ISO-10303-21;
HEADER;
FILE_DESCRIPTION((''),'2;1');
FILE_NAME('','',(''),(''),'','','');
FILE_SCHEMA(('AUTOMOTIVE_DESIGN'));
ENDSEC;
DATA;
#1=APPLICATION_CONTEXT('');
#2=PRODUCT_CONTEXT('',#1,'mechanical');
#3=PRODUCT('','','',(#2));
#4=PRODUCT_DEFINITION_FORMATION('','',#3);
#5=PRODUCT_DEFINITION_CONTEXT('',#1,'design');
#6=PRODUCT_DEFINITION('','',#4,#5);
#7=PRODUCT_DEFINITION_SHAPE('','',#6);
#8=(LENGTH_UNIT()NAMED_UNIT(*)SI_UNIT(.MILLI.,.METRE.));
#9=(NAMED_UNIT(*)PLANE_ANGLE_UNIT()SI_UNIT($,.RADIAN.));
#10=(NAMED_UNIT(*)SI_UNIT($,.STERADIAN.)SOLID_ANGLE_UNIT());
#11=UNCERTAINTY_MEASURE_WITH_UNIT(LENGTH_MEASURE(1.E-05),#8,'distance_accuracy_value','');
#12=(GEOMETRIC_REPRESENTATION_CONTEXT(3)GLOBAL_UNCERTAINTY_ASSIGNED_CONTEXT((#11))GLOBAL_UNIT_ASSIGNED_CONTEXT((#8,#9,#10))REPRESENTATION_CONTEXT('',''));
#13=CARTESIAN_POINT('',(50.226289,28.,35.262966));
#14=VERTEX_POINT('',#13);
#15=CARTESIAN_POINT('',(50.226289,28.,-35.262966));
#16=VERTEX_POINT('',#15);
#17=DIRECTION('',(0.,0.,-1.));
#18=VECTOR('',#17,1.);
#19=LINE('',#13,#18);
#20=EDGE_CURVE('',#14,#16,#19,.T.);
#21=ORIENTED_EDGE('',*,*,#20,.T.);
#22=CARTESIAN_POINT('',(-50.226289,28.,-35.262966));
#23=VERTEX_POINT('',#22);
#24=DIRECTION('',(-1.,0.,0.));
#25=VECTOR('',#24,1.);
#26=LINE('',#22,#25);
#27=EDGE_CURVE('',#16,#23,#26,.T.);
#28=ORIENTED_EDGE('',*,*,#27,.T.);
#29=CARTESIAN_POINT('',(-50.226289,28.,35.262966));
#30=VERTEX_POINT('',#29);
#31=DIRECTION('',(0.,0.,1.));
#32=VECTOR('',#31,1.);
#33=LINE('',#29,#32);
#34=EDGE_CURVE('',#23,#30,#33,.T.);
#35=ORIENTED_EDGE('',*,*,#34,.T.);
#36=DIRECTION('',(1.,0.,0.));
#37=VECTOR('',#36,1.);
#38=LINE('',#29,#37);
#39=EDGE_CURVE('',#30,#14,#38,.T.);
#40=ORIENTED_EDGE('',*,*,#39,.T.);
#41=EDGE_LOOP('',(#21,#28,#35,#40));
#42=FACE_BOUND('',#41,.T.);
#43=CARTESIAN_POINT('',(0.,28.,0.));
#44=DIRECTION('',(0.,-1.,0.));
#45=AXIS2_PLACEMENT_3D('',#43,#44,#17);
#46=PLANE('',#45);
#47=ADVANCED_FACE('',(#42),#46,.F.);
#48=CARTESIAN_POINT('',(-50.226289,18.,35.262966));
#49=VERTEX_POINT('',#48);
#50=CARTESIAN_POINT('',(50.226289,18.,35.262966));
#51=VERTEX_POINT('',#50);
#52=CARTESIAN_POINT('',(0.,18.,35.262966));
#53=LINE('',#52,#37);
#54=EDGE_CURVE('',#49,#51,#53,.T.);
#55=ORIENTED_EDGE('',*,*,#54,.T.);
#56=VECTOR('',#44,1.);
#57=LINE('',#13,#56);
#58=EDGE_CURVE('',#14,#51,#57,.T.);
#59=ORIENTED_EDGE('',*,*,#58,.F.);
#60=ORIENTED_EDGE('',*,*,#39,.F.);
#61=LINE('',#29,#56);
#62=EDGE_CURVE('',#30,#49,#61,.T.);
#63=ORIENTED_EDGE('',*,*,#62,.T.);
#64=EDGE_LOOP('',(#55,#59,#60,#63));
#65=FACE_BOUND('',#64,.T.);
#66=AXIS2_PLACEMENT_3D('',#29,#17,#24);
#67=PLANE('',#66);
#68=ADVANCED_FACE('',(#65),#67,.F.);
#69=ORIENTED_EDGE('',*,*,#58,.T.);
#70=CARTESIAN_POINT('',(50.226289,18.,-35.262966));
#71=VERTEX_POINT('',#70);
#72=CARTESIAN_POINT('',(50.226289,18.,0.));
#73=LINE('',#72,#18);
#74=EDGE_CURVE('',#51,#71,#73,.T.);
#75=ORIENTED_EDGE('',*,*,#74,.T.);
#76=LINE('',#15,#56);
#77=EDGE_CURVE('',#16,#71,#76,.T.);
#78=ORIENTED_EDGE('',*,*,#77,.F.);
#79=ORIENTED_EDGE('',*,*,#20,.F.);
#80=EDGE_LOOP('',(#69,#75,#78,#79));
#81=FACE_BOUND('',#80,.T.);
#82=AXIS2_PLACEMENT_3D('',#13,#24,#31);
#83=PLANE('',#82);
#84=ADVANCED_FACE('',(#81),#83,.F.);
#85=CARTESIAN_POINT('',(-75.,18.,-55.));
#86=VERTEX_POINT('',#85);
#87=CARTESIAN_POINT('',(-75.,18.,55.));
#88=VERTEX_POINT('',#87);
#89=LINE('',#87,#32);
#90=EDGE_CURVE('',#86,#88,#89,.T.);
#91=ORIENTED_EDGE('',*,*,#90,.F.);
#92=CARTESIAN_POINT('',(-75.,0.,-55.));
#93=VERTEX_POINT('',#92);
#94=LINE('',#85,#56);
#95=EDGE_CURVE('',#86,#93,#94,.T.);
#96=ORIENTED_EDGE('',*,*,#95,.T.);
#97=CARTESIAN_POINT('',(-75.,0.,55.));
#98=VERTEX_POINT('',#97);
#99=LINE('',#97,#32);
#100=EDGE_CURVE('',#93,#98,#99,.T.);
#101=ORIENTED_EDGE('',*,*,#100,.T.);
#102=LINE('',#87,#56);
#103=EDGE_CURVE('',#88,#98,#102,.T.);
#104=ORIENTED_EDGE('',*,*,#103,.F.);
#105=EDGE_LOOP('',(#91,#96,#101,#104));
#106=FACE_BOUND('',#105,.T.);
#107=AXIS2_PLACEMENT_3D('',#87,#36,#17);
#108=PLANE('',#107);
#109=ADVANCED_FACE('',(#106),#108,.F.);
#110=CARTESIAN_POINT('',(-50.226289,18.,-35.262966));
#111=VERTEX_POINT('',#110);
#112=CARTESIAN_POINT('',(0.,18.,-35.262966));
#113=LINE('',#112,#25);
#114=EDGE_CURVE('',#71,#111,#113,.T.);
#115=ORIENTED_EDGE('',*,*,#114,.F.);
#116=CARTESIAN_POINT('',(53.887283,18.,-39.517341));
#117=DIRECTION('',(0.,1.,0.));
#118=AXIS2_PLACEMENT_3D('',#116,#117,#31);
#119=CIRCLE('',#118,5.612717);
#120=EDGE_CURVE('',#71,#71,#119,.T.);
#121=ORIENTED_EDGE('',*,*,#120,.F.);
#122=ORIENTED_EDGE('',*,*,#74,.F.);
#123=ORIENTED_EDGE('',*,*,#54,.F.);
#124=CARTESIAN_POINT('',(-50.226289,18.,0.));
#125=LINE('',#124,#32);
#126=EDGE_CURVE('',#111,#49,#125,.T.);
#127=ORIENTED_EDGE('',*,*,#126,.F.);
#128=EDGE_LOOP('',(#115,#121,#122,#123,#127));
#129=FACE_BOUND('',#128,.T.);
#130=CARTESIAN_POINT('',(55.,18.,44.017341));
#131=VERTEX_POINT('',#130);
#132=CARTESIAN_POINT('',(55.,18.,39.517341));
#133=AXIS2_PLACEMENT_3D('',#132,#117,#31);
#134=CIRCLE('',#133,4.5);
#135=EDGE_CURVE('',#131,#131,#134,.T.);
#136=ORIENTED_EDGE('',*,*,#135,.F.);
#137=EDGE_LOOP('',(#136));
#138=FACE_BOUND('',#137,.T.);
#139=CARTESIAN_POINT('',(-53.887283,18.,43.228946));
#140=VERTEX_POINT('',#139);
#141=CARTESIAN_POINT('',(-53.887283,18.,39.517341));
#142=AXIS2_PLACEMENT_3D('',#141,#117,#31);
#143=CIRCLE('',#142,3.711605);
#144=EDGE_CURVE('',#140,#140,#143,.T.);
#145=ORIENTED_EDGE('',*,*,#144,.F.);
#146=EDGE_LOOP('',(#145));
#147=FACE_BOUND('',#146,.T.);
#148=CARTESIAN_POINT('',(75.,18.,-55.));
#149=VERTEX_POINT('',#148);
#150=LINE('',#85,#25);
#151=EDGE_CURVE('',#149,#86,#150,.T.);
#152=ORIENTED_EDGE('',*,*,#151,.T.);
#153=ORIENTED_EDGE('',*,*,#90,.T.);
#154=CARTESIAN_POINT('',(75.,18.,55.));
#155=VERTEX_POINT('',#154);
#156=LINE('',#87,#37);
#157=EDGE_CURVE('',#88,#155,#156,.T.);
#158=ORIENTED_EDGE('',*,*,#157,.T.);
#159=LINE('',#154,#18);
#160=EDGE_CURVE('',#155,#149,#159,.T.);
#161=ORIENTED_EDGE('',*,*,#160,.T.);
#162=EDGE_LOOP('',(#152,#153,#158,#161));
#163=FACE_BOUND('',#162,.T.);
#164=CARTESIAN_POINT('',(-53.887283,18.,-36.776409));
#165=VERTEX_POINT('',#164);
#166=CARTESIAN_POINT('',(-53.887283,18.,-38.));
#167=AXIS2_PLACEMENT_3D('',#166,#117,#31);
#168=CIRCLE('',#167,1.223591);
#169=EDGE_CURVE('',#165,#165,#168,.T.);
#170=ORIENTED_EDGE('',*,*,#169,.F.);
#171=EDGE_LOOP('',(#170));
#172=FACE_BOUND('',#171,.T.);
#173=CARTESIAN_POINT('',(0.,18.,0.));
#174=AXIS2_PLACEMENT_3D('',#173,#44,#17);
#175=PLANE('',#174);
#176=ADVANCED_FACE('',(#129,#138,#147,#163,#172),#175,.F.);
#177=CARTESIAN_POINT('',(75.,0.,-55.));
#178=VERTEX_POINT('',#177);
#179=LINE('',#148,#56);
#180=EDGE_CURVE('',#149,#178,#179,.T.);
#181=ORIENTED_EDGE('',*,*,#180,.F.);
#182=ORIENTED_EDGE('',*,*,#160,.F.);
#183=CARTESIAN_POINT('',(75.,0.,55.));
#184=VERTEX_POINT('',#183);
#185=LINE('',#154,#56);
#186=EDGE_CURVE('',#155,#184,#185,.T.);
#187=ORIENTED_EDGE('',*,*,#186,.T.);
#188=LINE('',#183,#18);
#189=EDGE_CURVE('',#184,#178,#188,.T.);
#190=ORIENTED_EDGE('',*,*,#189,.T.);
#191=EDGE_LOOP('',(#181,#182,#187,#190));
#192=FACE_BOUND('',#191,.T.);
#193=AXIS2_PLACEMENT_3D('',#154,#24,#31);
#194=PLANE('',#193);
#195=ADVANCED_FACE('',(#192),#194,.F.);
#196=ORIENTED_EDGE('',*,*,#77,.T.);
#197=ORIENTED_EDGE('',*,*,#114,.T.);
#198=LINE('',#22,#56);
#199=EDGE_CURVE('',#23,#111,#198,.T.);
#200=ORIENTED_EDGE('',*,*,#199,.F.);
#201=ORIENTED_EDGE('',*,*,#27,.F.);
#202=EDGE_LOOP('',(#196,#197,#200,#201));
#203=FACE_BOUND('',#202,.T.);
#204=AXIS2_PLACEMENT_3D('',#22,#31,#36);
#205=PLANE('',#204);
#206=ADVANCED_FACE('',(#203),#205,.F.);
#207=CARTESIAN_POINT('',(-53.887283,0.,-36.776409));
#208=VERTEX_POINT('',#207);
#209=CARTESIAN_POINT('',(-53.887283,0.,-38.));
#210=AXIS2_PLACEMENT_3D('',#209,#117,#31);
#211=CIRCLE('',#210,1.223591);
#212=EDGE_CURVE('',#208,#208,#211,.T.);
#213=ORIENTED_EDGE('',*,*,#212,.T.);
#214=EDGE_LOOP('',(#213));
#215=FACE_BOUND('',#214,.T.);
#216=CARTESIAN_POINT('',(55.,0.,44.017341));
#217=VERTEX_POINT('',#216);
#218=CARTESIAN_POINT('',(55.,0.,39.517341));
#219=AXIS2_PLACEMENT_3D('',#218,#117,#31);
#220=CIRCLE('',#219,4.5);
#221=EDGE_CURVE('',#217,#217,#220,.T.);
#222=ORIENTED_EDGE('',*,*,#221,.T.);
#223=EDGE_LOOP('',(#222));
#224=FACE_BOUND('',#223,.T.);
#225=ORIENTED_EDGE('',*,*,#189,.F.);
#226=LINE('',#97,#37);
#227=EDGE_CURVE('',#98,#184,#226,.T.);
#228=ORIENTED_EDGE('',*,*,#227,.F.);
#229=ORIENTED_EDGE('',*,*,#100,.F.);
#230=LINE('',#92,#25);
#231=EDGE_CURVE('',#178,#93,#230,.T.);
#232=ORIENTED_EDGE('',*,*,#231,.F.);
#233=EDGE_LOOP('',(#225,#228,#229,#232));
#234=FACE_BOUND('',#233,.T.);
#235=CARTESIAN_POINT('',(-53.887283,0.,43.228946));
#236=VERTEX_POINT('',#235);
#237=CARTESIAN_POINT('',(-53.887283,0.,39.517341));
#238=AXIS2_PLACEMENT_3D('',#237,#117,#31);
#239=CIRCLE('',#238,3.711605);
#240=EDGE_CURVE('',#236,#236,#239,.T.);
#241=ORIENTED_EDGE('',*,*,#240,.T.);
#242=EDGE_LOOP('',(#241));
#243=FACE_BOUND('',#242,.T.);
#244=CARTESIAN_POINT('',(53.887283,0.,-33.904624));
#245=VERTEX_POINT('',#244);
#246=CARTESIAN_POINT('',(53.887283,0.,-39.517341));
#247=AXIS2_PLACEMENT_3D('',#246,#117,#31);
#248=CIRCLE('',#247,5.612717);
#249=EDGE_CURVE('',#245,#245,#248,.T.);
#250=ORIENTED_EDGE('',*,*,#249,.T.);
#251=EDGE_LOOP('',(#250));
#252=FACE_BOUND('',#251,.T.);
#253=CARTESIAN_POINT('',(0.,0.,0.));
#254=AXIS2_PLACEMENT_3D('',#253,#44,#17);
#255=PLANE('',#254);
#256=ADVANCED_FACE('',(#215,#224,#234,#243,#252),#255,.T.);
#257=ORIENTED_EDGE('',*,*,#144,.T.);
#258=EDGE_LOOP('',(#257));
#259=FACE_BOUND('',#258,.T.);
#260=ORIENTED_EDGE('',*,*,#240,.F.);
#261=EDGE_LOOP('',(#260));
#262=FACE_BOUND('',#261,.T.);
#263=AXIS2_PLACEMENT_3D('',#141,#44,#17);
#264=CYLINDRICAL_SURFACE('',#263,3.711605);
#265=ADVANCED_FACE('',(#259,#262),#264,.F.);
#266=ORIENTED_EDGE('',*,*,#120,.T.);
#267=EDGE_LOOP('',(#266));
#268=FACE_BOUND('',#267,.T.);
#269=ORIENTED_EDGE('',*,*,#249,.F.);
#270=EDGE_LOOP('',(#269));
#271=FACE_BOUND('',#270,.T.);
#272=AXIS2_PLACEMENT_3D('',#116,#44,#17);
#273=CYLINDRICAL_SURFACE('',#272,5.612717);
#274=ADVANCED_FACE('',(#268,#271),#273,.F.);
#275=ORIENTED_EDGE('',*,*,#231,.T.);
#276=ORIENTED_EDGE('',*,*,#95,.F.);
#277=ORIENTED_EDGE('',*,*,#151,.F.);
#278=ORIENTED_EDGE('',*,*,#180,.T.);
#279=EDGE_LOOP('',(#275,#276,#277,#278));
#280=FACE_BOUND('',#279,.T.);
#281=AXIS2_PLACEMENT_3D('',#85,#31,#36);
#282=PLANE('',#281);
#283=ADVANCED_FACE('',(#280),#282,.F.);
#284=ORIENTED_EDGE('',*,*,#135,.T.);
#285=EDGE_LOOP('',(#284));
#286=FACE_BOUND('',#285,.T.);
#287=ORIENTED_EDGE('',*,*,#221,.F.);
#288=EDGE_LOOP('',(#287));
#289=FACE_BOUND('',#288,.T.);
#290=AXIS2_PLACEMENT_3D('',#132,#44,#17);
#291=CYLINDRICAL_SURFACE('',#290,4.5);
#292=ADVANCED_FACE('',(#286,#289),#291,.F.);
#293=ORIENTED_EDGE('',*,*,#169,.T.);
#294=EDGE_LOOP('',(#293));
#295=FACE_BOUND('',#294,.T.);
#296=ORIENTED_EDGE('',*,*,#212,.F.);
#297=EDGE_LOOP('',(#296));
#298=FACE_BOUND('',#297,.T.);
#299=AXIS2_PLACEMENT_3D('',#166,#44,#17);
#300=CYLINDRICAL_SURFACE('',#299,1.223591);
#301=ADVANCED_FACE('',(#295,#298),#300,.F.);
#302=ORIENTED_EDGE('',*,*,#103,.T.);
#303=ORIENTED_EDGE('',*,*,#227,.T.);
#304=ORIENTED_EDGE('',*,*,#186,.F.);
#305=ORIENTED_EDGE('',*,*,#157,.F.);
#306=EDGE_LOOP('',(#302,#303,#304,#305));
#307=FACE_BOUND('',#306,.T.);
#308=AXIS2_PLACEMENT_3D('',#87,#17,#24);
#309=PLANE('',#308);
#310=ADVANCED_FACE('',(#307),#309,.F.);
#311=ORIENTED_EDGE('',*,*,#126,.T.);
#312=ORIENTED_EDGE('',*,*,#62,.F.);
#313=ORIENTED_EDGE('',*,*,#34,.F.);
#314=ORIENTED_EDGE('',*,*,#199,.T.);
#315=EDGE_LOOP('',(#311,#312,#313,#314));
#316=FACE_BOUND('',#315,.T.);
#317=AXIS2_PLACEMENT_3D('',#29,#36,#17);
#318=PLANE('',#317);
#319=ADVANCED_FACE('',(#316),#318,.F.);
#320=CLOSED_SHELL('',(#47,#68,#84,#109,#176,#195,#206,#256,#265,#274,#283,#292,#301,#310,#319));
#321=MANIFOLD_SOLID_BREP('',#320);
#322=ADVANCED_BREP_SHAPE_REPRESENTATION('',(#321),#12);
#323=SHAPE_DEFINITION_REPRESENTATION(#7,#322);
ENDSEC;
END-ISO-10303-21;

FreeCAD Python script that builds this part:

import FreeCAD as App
import Part
import Sketcher
from FreeCAD import Vector


def add_polygon(sketch, points):
    """Adds a closed chain of lines whose ends are joined by coincident constraints."""
    first, n = sketch.GeometryCount, len(points)
    for a, b in zip(points, points[1:] + points[:1]):
        sketch.addGeometry(Part.LineSegment(App.Vector(*a, 0), App.Vector(*b, 0)), False)
    for i in range(n):
        sketch.addConstraint(Sketcher.Constraint("Coincident", first + i, 2, first + (i + 1) % n, 1))

doc = App.newDocument("Part")
params = doc.addObject("Spreadsheet::Sheet", "Params")
for row, (alias, value) in enumerate([
    ("sketch1_diameter", "9 mm"),
    ("sketch1_width", "150 mm"),
    ("sketch1_width2", "70 mm"),
    ("sketch1_height", "110 mm"),
    ("sketch1_height2", "24 mm"),
    ("pad1_length", "18 mm"),
    ("pad2_length", "28 mm"),
], start=1):
    params.set(f"A{row}", alias)
    params.set(f"B{row}", "=" + value)
    params.setAlias(f"B{row}", alias)

body = doc.addObject("PartDesign::Body", "Body")

# Sketch on XZ plane
sketch1 = body.newObject("Sketcher::SketchObject", "Sketch")
sketch1.AttachmentSupport = (doc.getObject("XZ_Plane"), [""])
sketch1.MapMode = "FlatFace"
add_polygon(sketch1, [(-75, -55), (-75, 55), (75, 55), (75, -55)])  # lines 0-3
sketch1.addGeometry(Part.Circle(Vector(-53.9, 39.5, 0), Vector(0, 0, 1), 3.7), False)  # 4
add_polygon(sketch1, [(35, 12), (-35, 12), (-35, -12), (35, -12)])  # lines 5-8
sketch1.addGeometry(Part.Circle(Vector(55, 39.5, 0), Vector(0, 0, 1), 4.5), False)  # 9
sketch1.addGeometry(Part.Circle(Vector(-53.9, -38, 0), Vector(0, 0, 1), 1.2), False)  # 10
sketch1.addGeometry(Part.Circle(Vector(53.9, -39.5, 0), Vector(0, 0, 1), 5.6), False)  # 11
sketch1.addConstraint([
    Sketcher.Constraint("Vertical", 0),
    Sketcher.Constraint("Horizontal", 1),
    Sketcher.Constraint("Vertical", 2),
    Sketcher.Constraint("Horizontal", 3),
    Sketcher.Constraint("Horizontal", 5),
    Sketcher.Constraint("Vertical", 6),
    Sketcher.Constraint("Horizontal", 7),
    Sketcher.Constraint("Vertical", 8),
    Sketcher.Constraint("Symmetric", 4, 3, 11, 3, -1, 1),
    Sketcher.Constraint("Symmetric", 0, 2, 2, 2, -1, 1),
    Sketcher.Constraint("Symmetric", 5, 2, 7, 2, -1, 1),
    Sketcher.Constraint("Horizontal", 4, 3, 9, 3),
    Sketcher.Constraint("Vertical", 4, 3, 10, 3),
    Sketcher.Constraint("Diameter", 9, 9.0),
    Sketcher.Constraint("DistanceX", 1, 1, 1, 2, 150.0),
    Sketcher.Constraint("DistanceX", 5, 2, 5, 1, 70.0),
    Sketcher.Constraint("DistanceY", 0, 1, 0, 2, 110.0),
    Sketcher.Constraint("DistanceY", 6, 2, 6, 1, 24.0),
    Sketcher.Constraint("DistanceX", -1, 1, 9, 3, 55.0),
    Sketcher.Constraint("DistanceY", 10, 3, -1, 1, 38.0),
    Sketcher.Constraint("Diameter", 4, 7.42321),
    Sketcher.Constraint("Diameter", 10, 2.447183),
    Sketcher.Constraint("Diameter", 11, 11.225434),
    Sketcher.Constraint("DistanceY", -1, 1, 4, 3, 39.517341),
    Sketcher.Constraint("DistanceX", 4, 3, -1, 1, 53.887283),
])
sketch1.setExpression("Constraints[21]", "Params.sketch1_diameter")
sketch1.setExpression("Constraints[22]", "Params.sketch1_width")
sketch1.setExpression("Constraints[23]", "Params.sketch1_width2")
sketch1.setExpression("Constraints[24]", "Params.sketch1_height")
sketch1.setExpression("Constraints[25]", "Params.sketch1_height2")
pad1 = body.newObject("PartDesign::Pad", "Pad")
pad1.Profile = sketch1
pad1.setExpression("Length", "Params.pad1_length")
pad1.Reversed = True

# Sketch on XZ plane
sketch2 = body.newObject("Sketcher::SketchObject", "Sketch001")
sketch2.AttachmentSupport = (doc.getObject("XZ_Plane"), [""])
sketch2.MapMode = "FlatFace"
add_polygon(sketch2, [(-50, -35), (-50, 35), (50, 35), (50, -35)])  # lines 0-3
sketch2.addConstraint([
    Sketcher.Constraint("Vertical", 0),
    Sketcher.Constraint("Horizontal", 1),
    Sketcher.Constraint("Vertical", 2),
    Sketcher.Constraint("Horizontal", 3),
    Sketcher.Constraint("Symmetric", 0, 2, 2, 2, -1, 1),
    Sketcher.Constraint("DistanceY", 0, 1, 0, 2, 70.525932),
    Sketcher.Constraint("DistanceX", 1, 1, 1, 2, 100.452577),
])
pad2 = body.newObject("PartDesign::Pad", "Pad001")
pad2.Profile = sketch2
pad2.setExpression("Length", "Params.pad2_length")
pad2.Reversed = True

doc.recompute()
